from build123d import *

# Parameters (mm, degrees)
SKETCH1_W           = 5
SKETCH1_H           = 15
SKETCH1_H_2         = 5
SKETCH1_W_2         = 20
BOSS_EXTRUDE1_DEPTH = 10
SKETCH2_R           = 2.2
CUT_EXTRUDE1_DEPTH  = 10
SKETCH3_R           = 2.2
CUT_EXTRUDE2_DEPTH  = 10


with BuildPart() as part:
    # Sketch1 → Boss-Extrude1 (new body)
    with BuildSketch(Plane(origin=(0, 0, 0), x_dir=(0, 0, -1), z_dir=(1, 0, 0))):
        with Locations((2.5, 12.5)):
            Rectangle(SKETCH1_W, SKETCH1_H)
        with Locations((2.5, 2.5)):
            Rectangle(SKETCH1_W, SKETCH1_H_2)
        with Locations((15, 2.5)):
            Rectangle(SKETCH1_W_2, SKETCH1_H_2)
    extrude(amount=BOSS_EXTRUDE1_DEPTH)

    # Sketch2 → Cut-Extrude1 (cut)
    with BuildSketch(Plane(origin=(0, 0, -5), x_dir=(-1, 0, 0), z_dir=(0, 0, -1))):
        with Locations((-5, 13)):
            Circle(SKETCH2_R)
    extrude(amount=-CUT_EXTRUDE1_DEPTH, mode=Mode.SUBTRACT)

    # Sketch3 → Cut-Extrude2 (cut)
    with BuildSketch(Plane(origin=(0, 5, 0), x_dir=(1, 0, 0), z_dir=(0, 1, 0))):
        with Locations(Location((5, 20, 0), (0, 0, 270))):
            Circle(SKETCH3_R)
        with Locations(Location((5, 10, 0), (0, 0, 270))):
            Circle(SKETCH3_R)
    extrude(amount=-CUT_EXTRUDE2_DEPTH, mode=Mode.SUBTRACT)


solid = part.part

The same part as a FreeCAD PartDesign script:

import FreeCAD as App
import Part
import Sketcher
Q = App.Units.Quantity


def add_polygon(sketch, points):
    """Adds a closed chain of lines whose ends are joined by coincident constraints."""
    first, n = sketch.GeometryCount, len(points)
    for a, b in zip(points, points[1:] + points[:1]):
        sketch.addGeometry(Part.LineSegment(App.Vector(*a, 0), App.Vector(*b, 0)), False)
    for i in range(n):
        sketch.addConstraint(Sketcher.Constraint("Coincident", first + i, 2, first + (i + 1) % n, 1))

doc = App.newDocument("Part")
body = doc.addObject("PartDesign::Body", "Body")

sketch1 = body.newObject("Sketcher::SketchObject", "Sketch")
sketch1.AttachmentSupport = (doc.getObject("YZ_Plane"), [""])
sketch1.MapMode = "FlatFace"
add_polygon(sketch1, [(20, 0), (0, 0), (0, -25), (5, -25), (5, -5), (20, -5)])
sketch1.addConstraint([
    Sketcher.Constraint("Horizontal", 0),
    Sketcher.Constraint("Vertical", 1),
    Sketcher.Constraint("Horizontal", 2),
    Sketcher.Constraint("Vertical", 3),
    Sketcher.Constraint("Horizontal", 4),
    Sketcher.Constraint("Vertical", 5),
    Sketcher.Constraint("Coincident", 0, 2, -1, 1),
    Sketcher.Constraint("Equal", 0, 3),
    Sketcher.Constraint("Equal", 2, 5),
    Sketcher.Constraint("DistanceX", 0, 2, 0, 1, Q("20 mm")),
    Sketcher.Constraint("DistanceX", 2, 1, 2, 2, Q("5 mm")),
])
pad1 = body.newObject("PartDesign::Pad", "Pad")
pad1.Profile = sketch1
pad1.Length = 10

sketch2 = body.newObject("Sketcher::SketchObject", "Sketch001")
sketch2.AttachmentSupport = (doc.getObject("XY_Plane"), [""])
sketch2.MapMode = "FlatFace"
sketch2.AttachmentOffset = App.Placement(App.Vector(0, 0, -5), App.Rotation())
sketch2.addGeometry(Part.Circle(App.Vector(5, 13, 0), App.Vector(0, 0, 1), 2.2), False)
sketch2.addConstraint([
    Sketcher.Constraint("Diameter", 0, Q("4.4 mm")),
    Sketcher.Constraint("DistanceX", -1, 1, 0, 3, Q("5 mm")),
    Sketcher.Constraint("DistanceY", -1, 1, 0, 3, Q("13 mm")),
])
pocket1 = body.newObject("PartDesign::Pocket", "Pocket")
pocket1.Profile = sketch2
pocket1.Length = 10
pocket1.Reversed = True

sketch3 = body.newObject("Sketcher::SketchObject", "Sketch002")
sketch3.AttachmentSupport = (doc.getObject("XZ_Plane"), [""])
sketch3.MapMode = "FlatFace"
sketch3.AttachmentOffset = App.Placement(App.Vector(0, 0, -5), App.Rotation())
sketch3.addGeometry([
    Part.Circle(App.Vector(5, -20, 0), App.Vector(0, 0, 1), 2.2),
    Part.Circle(App.Vector(5, -10, 0), App.Vector(0, 0, 1), 2.2),
], False)
sketch3.addConstraint([
    Sketcher.Constraint("Equal", 0, 1),
    Sketcher.Constraint("Vertical", 0, 3, 1, 3),
    Sketcher.Constraint("Diameter", 0, Q("4.4 mm")),
    Sketcher.Constraint("DistanceX", -1, 1, 0, 3, Q("5 mm")),
    Sketcher.Constraint("DistanceY", 0, 3, -1, 1, Q("20 mm")),
    Sketcher.Constraint("DistanceY", 1, 3, -1, 1, Q("10 mm")),
])
pocket2 = body.newObject("PartDesign::Pocket", "Pocket001")
pocket2.Profile = sketch3
pocket2.Length = 10
pocket2.Reversed = True

doc.recompute()
